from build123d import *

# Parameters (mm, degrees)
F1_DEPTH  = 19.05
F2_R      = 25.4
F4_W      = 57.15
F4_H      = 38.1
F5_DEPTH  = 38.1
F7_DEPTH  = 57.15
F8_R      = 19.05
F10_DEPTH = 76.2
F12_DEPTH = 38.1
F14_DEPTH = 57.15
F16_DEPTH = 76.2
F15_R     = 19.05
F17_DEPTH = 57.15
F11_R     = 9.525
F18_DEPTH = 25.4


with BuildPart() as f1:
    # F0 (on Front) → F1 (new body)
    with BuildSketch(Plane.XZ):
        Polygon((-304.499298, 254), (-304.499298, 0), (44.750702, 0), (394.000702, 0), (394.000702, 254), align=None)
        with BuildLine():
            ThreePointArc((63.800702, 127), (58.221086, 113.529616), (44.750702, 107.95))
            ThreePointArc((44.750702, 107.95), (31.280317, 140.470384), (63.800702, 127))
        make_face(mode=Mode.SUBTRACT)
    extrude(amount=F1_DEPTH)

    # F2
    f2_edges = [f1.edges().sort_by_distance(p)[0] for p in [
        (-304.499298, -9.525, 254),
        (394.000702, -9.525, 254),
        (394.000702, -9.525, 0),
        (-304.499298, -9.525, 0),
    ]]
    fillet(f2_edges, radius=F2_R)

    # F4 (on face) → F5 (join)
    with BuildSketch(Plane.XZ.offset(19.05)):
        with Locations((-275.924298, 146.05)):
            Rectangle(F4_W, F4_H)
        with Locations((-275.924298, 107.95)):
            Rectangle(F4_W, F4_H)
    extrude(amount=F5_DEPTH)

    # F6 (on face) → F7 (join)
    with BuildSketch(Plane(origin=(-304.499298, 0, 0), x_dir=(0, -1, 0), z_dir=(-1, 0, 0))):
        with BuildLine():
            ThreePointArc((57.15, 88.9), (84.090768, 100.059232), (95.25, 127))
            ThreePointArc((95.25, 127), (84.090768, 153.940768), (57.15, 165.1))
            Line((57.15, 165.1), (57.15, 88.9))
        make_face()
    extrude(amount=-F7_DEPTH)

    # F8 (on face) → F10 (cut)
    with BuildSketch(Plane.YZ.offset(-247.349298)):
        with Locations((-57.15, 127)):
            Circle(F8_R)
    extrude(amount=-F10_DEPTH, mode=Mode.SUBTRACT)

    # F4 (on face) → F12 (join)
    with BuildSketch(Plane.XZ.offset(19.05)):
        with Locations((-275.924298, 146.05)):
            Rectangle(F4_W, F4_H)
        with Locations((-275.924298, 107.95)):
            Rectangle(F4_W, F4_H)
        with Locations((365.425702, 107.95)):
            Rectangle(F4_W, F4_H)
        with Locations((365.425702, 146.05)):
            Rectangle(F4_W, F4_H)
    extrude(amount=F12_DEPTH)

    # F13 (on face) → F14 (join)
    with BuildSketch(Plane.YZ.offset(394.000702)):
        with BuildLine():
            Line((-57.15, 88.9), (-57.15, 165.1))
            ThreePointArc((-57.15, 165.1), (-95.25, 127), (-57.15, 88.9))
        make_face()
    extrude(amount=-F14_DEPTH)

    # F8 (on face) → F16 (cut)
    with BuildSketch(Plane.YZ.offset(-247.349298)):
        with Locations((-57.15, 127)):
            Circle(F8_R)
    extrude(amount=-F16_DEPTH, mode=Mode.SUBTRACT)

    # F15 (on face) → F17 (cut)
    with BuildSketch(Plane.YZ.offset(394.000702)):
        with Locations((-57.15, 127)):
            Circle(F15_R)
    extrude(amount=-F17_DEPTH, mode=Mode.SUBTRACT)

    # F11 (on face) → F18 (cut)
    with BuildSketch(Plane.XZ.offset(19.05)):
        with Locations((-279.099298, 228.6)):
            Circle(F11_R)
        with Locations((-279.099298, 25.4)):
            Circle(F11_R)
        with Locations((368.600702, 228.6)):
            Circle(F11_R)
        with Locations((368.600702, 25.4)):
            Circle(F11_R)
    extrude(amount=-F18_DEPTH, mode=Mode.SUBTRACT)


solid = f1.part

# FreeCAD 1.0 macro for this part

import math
import FreeCAD as App
import Part
import Sketcher
from FreeCAD import Vector
Q = App.Units.Quantity


def edges_at(feature, points):
    """Names of the edges that pass closest to the given points."""
    edges = feature.Shape.Edges
    near = lambda p: min(range(len(edges)), key=lambda i: edges[i].distToShape(Part.Vertex(*p))[0])
    return sorted({f"Edge{near(p) + 1}" for p in points})

doc = App.newDocument("Part")
params = doc.addObject("Spreadsheet::Sheet", "Params")
for row, (alias, value) in enumerate([
    ("sketch1_height", "10 in"),
    ("sketch1_radius", "0.75 in"),
    ("sketch1_width", "27.5 in"),
    ("pad1_length", "0.75 in"),
    ("fillet_radius", "1 in"),
    ("sketch2_height", "3 in"),
    ("sketch2_width", "2.25 in"),
    ("pad2_length", "1.5 in"),
    ("sketch3_radius", "1.5 in"),
    ("pad3_length", "2.25 in"),
    ("sketch4_diameter", "1.5 in"),
    ("pocket1_length", "3 in"),
    ("sketch5_height", "3 in"),
    ("sketch5_width", "2.25 in"),
    ("pad4_length", "1.5 in"),
    ("sketch6_radius", "1.5 in"),
    ("pad5_length", "2.25 in"),
    ("sketch7_diameter", "1.5 in"),
    ("pocket2_length", "3 in"),
    ("sketch8_diameter", "1.5 in"),
    ("pocket3_length", "2.25 in"),
    ("sketch9_diameter", "0.75 in"),
    ("pocket4_length", "1 in"),
], start=1):
    params.set(f"A{row}", alias)
    params.set(f"B{row}", "=" + value)
    params.setAlias(f"B{row}", alias)

body = doc.addObject("PartDesign::Body", "Body")

sketch1 = doc.addObject("Sketcher::SketchObject", "Sketch")
body.addObject(sketch1)
sketch1.AttachmentSupport = (doc.XZ_Plane, [""])
sketch1.MapMode = "FlatFace"
sketch1.addGeometry([
    Part.LineSegment(Vector(-304.499298, 254, 0), Vector(-304.499298, 0, 0)),
    Part.LineSegment(Vector(-304.499298, 0, 0), Vector(394.000702, 0, 0)),
    Part.LineSegment(Vector(394.000702, 0, 0), Vector(394.000702, 254, 0)),
    Part.LineSegment(Vector(394.000702, 254, 0), Vector(-304.499298, 254, 0)),
    Part.ArcOfCircle(Part.Circle(Vector(44.750702, 127, 0), Vector(0, 0, 1), 19.05), math.radians(-0.000001), math.radians(270.000001)),
    Part.ArcOfCircle(Part.Circle(Vector(44.750701, 127.000001, 0), Vector(0, 0, 1), 19.050001), math.radians(-89.999998), math.radians(-0.000002)),
], False)
sketch1.addConstraint([
    Sketcher.Constraint("Coincident", 0, 2, 1, 1),
    Sketcher.Constraint("Coincident", 1, 2, 2, 1),
    Sketcher.Constraint("Coincident", 2, 2, 3, 1),
    Sketcher.Constraint("Coincident", 3, 2, 0, 1),
    Sketcher.Constraint("Tangent", 4, 1, 5, 2),
    Sketcher.Constraint("Coincident", 5, 1, 4, 2),
    Sketcher.Constraint("Vertical", 0),
    Sketcher.Constraint("Horizontal", 1),
    Sketcher.Constraint("Vertical", 2),
    Sketcher.Constraint("Horizontal", 3),
    Sketcher.Constraint("PointOnObject", 0, 2, -1),
    Sketcher.Constraint("Horizontal", 5, 3, 4, 1),
    Sketcher.Constraint("Vertical", 4, 3, 5, 1),
    Sketcher.Constraint("DistanceY", 0, 2, 0, 1, Q("10 in")),
    Sketcher.Constraint("Radius", 4, Q("0.75 in")),
    Sketcher.Constraint("DistanceX", 1, 1, 1, 2, Q("27.5 in")),
    Sketcher.Constraint("DistanceY", -1, 1, 4, 3, Q("5 in")),
    Sketcher.Constraint("DistanceX", 4, 1, 1, 2, Q("13 in")),
    Sketcher.Constraint("DistanceX", -1, 1, 4, 3, 44.750702),
])
sketch1.setExpression("Constraints[13]", "Params.sketch1_height")
sketch1.setExpression("Constraints[14]", "Params.sketch1_radius")
sketch1.setExpression("Constraints[15]", "Params.sketch1_width")
pad1 = doc.addObject("PartDesign::Pad", "Pad")
body.addObject(pad1)
pad1.Profile = sketch1
pad1.setExpression("Length", "Params.pad1_length")
doc.recompute()

fillet = doc.addObject("PartDesign::Fillet", "Fillet")
body.addObject(fillet)
fillet.Base = (pad1, edges_at(pad1, [
    (-304.499, -9.525, 254),
    (394.001, -9.525, 254),
    (394.001, -9.525, 0),
    (-304.499, -9.525, 0),
]))
fillet.setExpression("Radius", "Params.fillet_radius")

sketch2 = doc.addObject("Sketcher::SketchObject", "Sketch001")
body.addObject(sketch2)
sketch2.AttachmentSupport = (doc.XZ_Plane, [""])
sketch2.MapMode = "FlatFace"
sketch2.AttachmentOffset = App.Placement(Vector(0, 0, 0.75 * 25.4), App.Rotation())
sketch2.addGeometry([
    Part.LineSegment(Vector(-304.499298, 165.1, 0), Vector(-304.499298, 88.9, 0)),
    Part.LineSegment(Vector(-304.499298, 88.9, 0), Vector(-247.349298, 88.9, 0)),
    Part.LineSegment(Vector(-247.349298, 88.9, 0), Vector(-247.349298, 165.1, 0)),
    Part.LineSegment(Vector(-247.349298, 165.1, 0), Vector(-304.499298, 165.1, 0)),
], False)
sketch2.addConstraint([
    Sketcher.Constraint("Coincident", 0, 2, 1, 1),
    Sketcher.Constraint("Coincident", 1, 2, 2, 1),
    Sketcher.Constraint("Coincident", 2, 2, 3, 1),
    Sketcher.Constraint("Coincident", 3, 2, 0, 1),
    Sketcher.Constraint("Vertical", 0),
    Sketcher.Constraint("Horizontal", 1),
    Sketcher.Constraint("Vertical", 2),
    Sketcher.Constraint("Horizontal", 3),
    Sketcher.Constraint("DistanceY", 0, 2, 0, 1, Q("3 in")),
    Sketcher.Constraint("DistanceX", 1, 1, 1, 2, Q("2.25 in")),
    Sketcher.Constraint("DistanceY", -1, 1, 0, 2, Q("3.5 in")),
    Sketcher.Constraint("DistanceX", 0, 2, -1, 1, 304.499298),
])
sketch2.setExpression("Constraints[8]", "Params.sketch2_height")
sketch2.setExpression("Constraints[9]", "Params.sketch2_width")
pad2 = doc.addObject("PartDesign::Pad", "Pad001")
body.addObject(pad2)
pad2.Profile = sketch2
pad2.setExpression("Length", "Params.pad2_length")

sketch3 = doc.addObject("Sketcher::SketchObject", "Sketch002")
body.addObject(sketch3)
sketch3.AttachmentSupport = (doc.YZ_Plane, [""])
sketch3.MapMode = "FlatFace"
sketch3.AttachmentOffset = App.Placement(Vector(0, 0, -304.499298), App.Rotation())
sketch3.addGeometry([
    Part.ArcOfCircle(Part.Circle(Vector(-57.149999, 127.000001, 0), Vector(0, 0, 1), 38.100001), math.radians(-179.999998), math.radians(-90.000002)),
    Part.ArcOfCircle(Part.Circle(Vector(-57.149999, 126.999999, 0), Vector(0, 0, 1), 38.100001), math.radians(90.000002), math.radians(179.999998)),
    Part.LineSegment(Vector(-57.15, 165.1, 0), Vector(-57.15, 88.9, 0)),
], False)
sketch3.addConstraint([
    Sketcher.Constraint("Tangent", 0, 1, 1, 2),
    Sketcher.Constraint("Coincident", 1, 1, 2, 1),
    Sketcher.Constraint("Coincident", 2, 2, 0, 2),
    Sketcher.Constraint("Vertical", 2),
    Sketcher.Constraint("Equal", 0, 1),
    Sketcher.Constraint("Horizontal", 1, 3, 0, 1),
    Sketcher.Constraint("Vertical", 0, 3, 1, 1),
    Sketcher.Constraint("Radius", 0, Q("1.5 in")),
    Sketcher.Constraint("DistanceY", -1, 1, 0, 3, Q("5 in")),
    Sketcher.Constraint("DistanceX", 0, 3, -1, 1, Q("2.25 in")),
])
sketch3.setExpression("Constraints[7]", "Params.sketch3_radius")
pad3 = doc.addObject("PartDesign::Pad", "Pad002")
body.addObject(pad3)
pad3.Profile = sketch3
pad3.setExpression("Length", "Params.pad3_length")

sketch4 = doc.addObject("Sketcher::SketchObject", "Sketch003")
body.addObject(sketch4)
sketch4.AttachmentSupport = (doc.YZ_Plane, [""])
sketch4.MapMode = "FlatFace"
sketch4.AttachmentOffset = App.Placement(Vector(0, 0, -247.349298), App.Rotation())
sketch4.addGeometry(Part.Circle(Vector(-57.15, 127, 0), Vector(0, 0, 1), 19.05), False)
sketch4.addConstraint([
    Sketcher.Constraint("Diameter", 0, Q("1.5 in")),
    Sketcher.Constraint("DistanceY", -1, 1, 0, 3, Q("5 in")),
    Sketcher.Constraint("DistanceX", 0, 3, -1, 1, Q("2.25 in")),
])
sketch4.setExpression("Constraints[0]", "Params.sketch4_diameter")
pocket1 = doc.addObject("PartDesign::Pocket", "Pocket")
body.addObject(pocket1)
pocket1.Profile = sketch4
pocket1.setExpression("Length", "Params.pocket1_length")

sketch5 = doc.addObject("Sketcher::SketchObject", "Sketch004")
body.addObject(sketch5)
sketch5.AttachmentSupport = (doc.XZ_Plane, [""])
sketch5.MapMode = "FlatFace"
sketch5.AttachmentOffset = App.Placement(Vector(0, 0, 0.75 * 25.4), App.Rotation())
sketch5.addGeometry([
    Part.LineSegment(Vector(-304.499298, 165.1, 0), Vector(-304.499298, 88.9, 0)),
    Part.LineSegment(Vector(-304.499298, 88.9, 0), Vector(-247.349298, 88.9, 0)),
    Part.LineSegment(Vector(-247.349298, 88.9, 0), Vector(-247.349298, 165.1, 0)),
    Part.LineSegment(Vector(-247.349298, 165.1, 0), Vector(-304.499298, 165.1, 0)),
    Part.LineSegment(Vector(336.850702, 88.9, 0), Vector(394.000702, 88.9, 0)),
    Part.LineSegment(Vector(394.000702, 88.9, 0), Vector(394.000702, 165.1, 0)),
    Part.LineSegment(Vector(394.000702, 165.1, 0), Vector(336.850702, 165.1, 0)),
    Part.LineSegment(Vector(336.850702, 165.1, 0), Vector(336.850702, 88.9, 0)),
], False)
sketch5.addConstraint([
    Sketcher.Constraint("Coincident", 0, 2, 1, 1),
    Sketcher.Constraint("Coincident", 1, 2, 2, 1),
    Sketcher.Constraint("Coincident", 2, 2, 3, 1),
    Sketcher.Constraint("Coincident", 3, 2, 0, 1),
    Sketcher.Constraint("Coincident", 4, 2, 5, 1),
    Sketcher.Constraint("Coincident", 5, 2, 6, 1),
    Sketcher.Constraint("Coincident", 6, 2, 7, 1),
    Sketcher.Constraint("Coincident", 7, 2, 4, 1),
    Sketcher.Constraint("Vertical", 0),
    Sketcher.Constraint("Horizontal", 1),
    Sketcher.Constraint("Vertical", 2),
    Sketcher.Constraint("Horizontal", 3),
    Sketcher.Constraint("Horizontal", 4),
    Sketcher.Constraint("Vertical", 5),
    Sketcher.Constraint("Horizontal", 6),
    Sketcher.Constraint("Vertical", 7),
    Sketcher.Constraint("Horizontal", 1, 2, 4, 2),
    Sketcher.Constraint("Horizontal", 3, 2, 5, 2),
    Sketcher.Constraint("Equal", 3, 4),
    Sketcher.Constraint("DistanceY", 0, 2, 0, 1, Q("3 in")),
    Sketcher.Constraint("DistanceX", 2, 2, 6, 2, Q("23 in")),
    Sketcher.Constraint("DistanceX", 1, 1, 1, 2, Q("2.25 in")),
    Sketcher.Constraint("DistanceY", -1, 1, 0, 2, Q("3.5 in")),
    Sketcher.Constraint("DistanceX", 0, 2, -1, 1, 304.499298),
])
sketch5.setExpression("Constraints[19]", "Params.sketch5_height")
sketch5.setExpression("Constraints[21]", "Params.sketch5_width")
pad4 = doc.addObject("PartDesign::Pad", "Pad003")
body.addObject(pad4)
pad4.Profile = sketch5
pad4.setExpression("Length", "Params.pad4_length")

sketch6 = doc.addObject("Sketcher::SketchObject", "Sketch005")
body.addObject(sketch6)
sketch6.AttachmentSupport = (doc.YZ_Plane, [""])
sketch6.MapMode = "FlatFace"
sketch6.AttachmentOffset = App.Placement(Vector(0, 0, 394.000702), App.Rotation())
sketch6.addGeometry([
    Part.LineSegment(Vector(-57.15, 88.9, 0), Vector(-57.15, 165.1, 0)),
    Part.ArcOfCircle(Part.Circle(Vector(-57.15, 127, 0), Vector(0, 0, 1), 38.1), math.radians(90), math.radians(270)),
], False)
sketch6.addConstraint([
    Sketcher.Constraint("Coincident", 0, 1, 1, 2),
    Sketcher.Constraint("Coincident", 1, 1, 0, 2),
    Sketcher.Constraint("Vertical", 0),
    Sketcher.Constraint("Vertical", 1, 3, 0, 1),
    Sketcher.Constraint("Radius", 1, Q("1.5 in")),
    Sketcher.Constraint("DistanceY", -1, 1, 1, 3, Q("5 in")),
    Sketcher.Constraint("DistanceX", 1, 3, -1, 1, Q("2.25 in")),
])
sketch6.setExpression("Constraints[4]", "Params.sketch6_radius")
pad5 = doc.addObject("PartDesign::Pad", "Pad004")
body.addObject(pad5)
pad5.Profile = sketch6
pad5.setExpression("Length", "Params.pad5_length")
pad5.Reversed = True

sketch7 = doc.addObject("Sketcher::SketchObject", "Sketch006")
body.addObject(sketch7)
sketch7.AttachmentSupport = (doc.YZ_Plane, [""])
sketch7.MapMode = "FlatFace"
sketch7.AttachmentOffset = App.Placement(Vector(0, 0, -247.349298), App.Rotation())
sketch7.addGeometry(Part.Circle(Vector(-57.15, 127, 0), Vector(0, 0, 1), 19.05), False)
sketch7.addConstraint([
    Sketcher.Constraint("Diameter", 0, Q("1.5 in")),
    Sketcher.Constraint("DistanceY", -1, 1, 0, 3, Q("5 in")),
    Sketcher.Constraint("DistanceX", 0, 3, -1, 1, Q("2.25 in")),
])
sketch7.setExpression("Constraints[0]", "Params.sketch7_diameter")
pocket2 = doc.addObject("PartDesign::Pocket", "Pocket001")
body.addObject(pocket2)
pocket2.Profile = sketch7
pocket2.setExpression("Length", "Params.pocket2_length")

sketch8 = doc.addObject("Sketcher::SketchObject", "Sketch007")
body.addObject(sketch8)
sketch8.AttachmentSupport = (doc.YZ_Plane, [""])
sketch8.MapMode = "FlatFace"
sketch8.AttachmentOffset = App.Placement(Vector(0, 0, 394.000702), App.Rotation())
sketch8.addGeometry(Part.Circle(Vector(-57.15, 127, 0), Vector(0, 0, 1), 19.05), False)
sketch8.addConstraint([
    Sketcher.Constraint("Diameter", 0, Q("1.5 in")),
    Sketcher.Constraint("DistanceY", -1, 1, 0, 3, Q("5 in")),
    Sketcher.Constraint("DistanceX", 0, 3, -1, 1, Q("2.25 in")),
])
sketch8.setExpression("Constraints[0]", "Params.sketch8_diameter")
pocket3 = doc.addObject("PartDesign::Pocket", "Pocket002")
body.addObject(pocket3)
pocket3.Profile = sketch8
pocket3.setExpression("Length", "Params.pocket3_length")

sketch9 = doc.addObject("Sketcher::SketchObject", "Sketch008")
body.addObject(sketch9)
sketch9.AttachmentSupport = (doc.XZ_Plane, [""])
sketch9.MapMode = "FlatFace"
sketch9.AttachmentOffset = App.Placement(Vector(0, 0, 0.75 * 25.4), App.Rotation())
sketch9.addGeometry([
    Part.Circle(Vector(-279.099298, 228.6, 0), Vector(0, 0, 1), 9.525),
    Part.Circle(Vector(-279.099298, 25.4, 0), Vector(0, 0, 1), 9.525),
    Part.Circle(Vector(368.600702, 228.6, 0), Vector(0, 0, 1), 9.525),
    Part.Circle(Vector(368.600702, 25.4, 0), Vector(0, 0, 1), 9.525),
], False)
sketch9.addConstraint([
    Sketcher.Constraint("Equal", 0, 1),
    Sketcher.Constraint("Equal", 1, 2),
    Sketcher.Constraint("Equal", 2, 3),
    Sketcher.Constraint("Horizontal", 0, 3, 2, 3),
    Sketcher.Constraint("Horizontal", 1, 3, 3, 3),
    Sketcher.Constraint("Vertical", 0, 3, 1, 3),
    Sketcher.Constraint("Vertical", 2, 3, 3, 3),
    Sketcher.Constraint("Diameter", 0, Q("0.75 in")),
    Sketcher.Constraint("DistanceY", -1, 1, 0, 3, Q("9 in")),
    Sketcher.Constraint("DistanceY", -1, 1, 1, 3, Q("1 in")),
    Sketcher.Constraint("DistanceX", 0, 3, 2, 3, Q("25.5 in")),
    Sketcher.Constraint("DistanceX", -1, 1, 2, 3, 368.600702),
])
sketch9.setExpression("Constraints[7]", "Params.sketch9_diameter")
pocket4 = doc.addObject("PartDesign::Pocket", "Pocket003")
body.addObject(pocket4)
pocket4.Profile = sketch9
pocket4.setExpression("Length", "Params.pocket4_length")

doc.recompute()
